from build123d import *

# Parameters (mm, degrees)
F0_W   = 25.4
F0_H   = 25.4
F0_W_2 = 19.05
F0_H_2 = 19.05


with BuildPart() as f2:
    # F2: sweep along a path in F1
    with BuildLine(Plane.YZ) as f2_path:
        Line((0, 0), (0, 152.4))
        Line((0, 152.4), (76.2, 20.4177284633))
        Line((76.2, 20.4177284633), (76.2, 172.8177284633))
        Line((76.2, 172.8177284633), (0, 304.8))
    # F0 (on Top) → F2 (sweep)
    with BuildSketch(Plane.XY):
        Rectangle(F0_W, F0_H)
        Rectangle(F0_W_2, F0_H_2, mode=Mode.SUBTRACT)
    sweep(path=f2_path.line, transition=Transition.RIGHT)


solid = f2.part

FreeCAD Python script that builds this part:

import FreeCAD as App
import Part
import Sketcher

V = App.Vector
Q = App.Units.Quantity


def add_polygon(sketch, points):
    """Adds a closed chain of lines whose ends are joined by coincident constraints."""
    first, n = sketch.GeometryCount, len(points)
    for a, b in zip(points, points[1:] + points[:1]):
        sketch.addGeometry(Part.LineSegment(App.Vector(*a, 0), App.Vector(*b, 0)), False)
    for i in range(n):
        sketch.addConstraint(Sketcher.Constraint("Coincident", first + i, 2, first + (i + 1) % n, 1))

doc = App.newDocument("Part")
body = doc.addObject("PartDesign::Body", "Body")

sketch1 = body.newObject("Sketcher::SketchObject", "Sketch")
sketch1.AttachmentSupport = (doc.getObject("XY_Plane"), [""])
sketch1.MapMode = "FlatFace"
add_polygon(sketch1, [(-13, 13), (-13, -13), (13, -13), (13, 13)])
add_polygon(sketch1, [(10, -10), (-10, -10), (-10, 10), (10, 10)])
sketch1.addConstraint([
    Sketcher.Constraint("Vertical", 0),
    Sketcher.Constraint("Horizontal", 1),
    Sketcher.Constraint("Vertical", 2),
    Sketcher.Constraint("Horizontal", 3),
    Sketcher.Constraint("Horizontal", 4),
    Sketcher.Constraint("Vertical", 5),
    Sketcher.Constraint("Horizontal", 6),
    Sketcher.Constraint("Vertical", 7),
    Sketcher.Constraint("Symmetric", 0, 2, 2, 2, -1, 1),
    Sketcher.Constraint("Symmetric", 4, 2, 6, 2, -1, 1),
    Sketcher.Constraint("Equal", 3, 0),
    Sketcher.Constraint("Equal", 6, 5),
    Sketcher.Constraint("DistanceX", 1, 1, 1, 2, Q("1 in")),
    Sketcher.Constraint("DistanceX", 4, 2, 4, 1, Q("0.75 in")),
])

sketch2 = body.newObject("Sketcher::SketchObject", "Sketch001")
sketch2.AttachmentSupport = (doc.getObject("YZ_Plane"), [""])
sketch2.MapMode = "FlatFace"
sketch2.addGeometry([
    Part.LineSegment(V(0, 0, 0), V(0, 152, 0)),
    Part.LineSegment(V(0, 152, 0), V(76, 20, 0)),
    Part.LineSegment(V(76, 20, 0), V(76, 173, 0)),
    Part.LineSegment(V(76, 173, 0), V(0, 305, 0)),
], False)
sketch2.addConstraint([
    Sketcher.Constraint("Coincident", 0, 2, 1, 1),
    Sketcher.Constraint("Coincident", 1, 2, 2, 1),
    Sketcher.Constraint("Coincident", 2, 2, 3, 1),
    Sketcher.Constraint("Vertical", 0),
    Sketcher.Constraint("Vertical", 2),
    Sketcher.Constraint("Coincident", 0, 1, -1, 1),
    Sketcher.Constraint("PointOnObject", 3, 2, -2),
    Sketcher.Constraint("Parallel", 1, 3),
    Sketcher.Constraint("Equal", 0, 2),
    Sketcher.Constraint("DistanceY", 0, 1, 0, 2, Q("6 in")),
    Sketcher.Constraint("Distance", 1, Q("6 in")),
    Sketcher.Constraint("DistanceX", -1, 1, 1, 2, Q("3 in")),
])
doc.recompute()

additivepipe = body.newObject("PartDesign::AdditivePipe", "AdditivePipe")
additivepipe.Profile = sketch1
additivepipe.Spine = (sketch2, ["Edge1", "Edge2", "Edge3", "Edge4"])
additivepipe.Transition = "Right corner"

doc.recompute()
